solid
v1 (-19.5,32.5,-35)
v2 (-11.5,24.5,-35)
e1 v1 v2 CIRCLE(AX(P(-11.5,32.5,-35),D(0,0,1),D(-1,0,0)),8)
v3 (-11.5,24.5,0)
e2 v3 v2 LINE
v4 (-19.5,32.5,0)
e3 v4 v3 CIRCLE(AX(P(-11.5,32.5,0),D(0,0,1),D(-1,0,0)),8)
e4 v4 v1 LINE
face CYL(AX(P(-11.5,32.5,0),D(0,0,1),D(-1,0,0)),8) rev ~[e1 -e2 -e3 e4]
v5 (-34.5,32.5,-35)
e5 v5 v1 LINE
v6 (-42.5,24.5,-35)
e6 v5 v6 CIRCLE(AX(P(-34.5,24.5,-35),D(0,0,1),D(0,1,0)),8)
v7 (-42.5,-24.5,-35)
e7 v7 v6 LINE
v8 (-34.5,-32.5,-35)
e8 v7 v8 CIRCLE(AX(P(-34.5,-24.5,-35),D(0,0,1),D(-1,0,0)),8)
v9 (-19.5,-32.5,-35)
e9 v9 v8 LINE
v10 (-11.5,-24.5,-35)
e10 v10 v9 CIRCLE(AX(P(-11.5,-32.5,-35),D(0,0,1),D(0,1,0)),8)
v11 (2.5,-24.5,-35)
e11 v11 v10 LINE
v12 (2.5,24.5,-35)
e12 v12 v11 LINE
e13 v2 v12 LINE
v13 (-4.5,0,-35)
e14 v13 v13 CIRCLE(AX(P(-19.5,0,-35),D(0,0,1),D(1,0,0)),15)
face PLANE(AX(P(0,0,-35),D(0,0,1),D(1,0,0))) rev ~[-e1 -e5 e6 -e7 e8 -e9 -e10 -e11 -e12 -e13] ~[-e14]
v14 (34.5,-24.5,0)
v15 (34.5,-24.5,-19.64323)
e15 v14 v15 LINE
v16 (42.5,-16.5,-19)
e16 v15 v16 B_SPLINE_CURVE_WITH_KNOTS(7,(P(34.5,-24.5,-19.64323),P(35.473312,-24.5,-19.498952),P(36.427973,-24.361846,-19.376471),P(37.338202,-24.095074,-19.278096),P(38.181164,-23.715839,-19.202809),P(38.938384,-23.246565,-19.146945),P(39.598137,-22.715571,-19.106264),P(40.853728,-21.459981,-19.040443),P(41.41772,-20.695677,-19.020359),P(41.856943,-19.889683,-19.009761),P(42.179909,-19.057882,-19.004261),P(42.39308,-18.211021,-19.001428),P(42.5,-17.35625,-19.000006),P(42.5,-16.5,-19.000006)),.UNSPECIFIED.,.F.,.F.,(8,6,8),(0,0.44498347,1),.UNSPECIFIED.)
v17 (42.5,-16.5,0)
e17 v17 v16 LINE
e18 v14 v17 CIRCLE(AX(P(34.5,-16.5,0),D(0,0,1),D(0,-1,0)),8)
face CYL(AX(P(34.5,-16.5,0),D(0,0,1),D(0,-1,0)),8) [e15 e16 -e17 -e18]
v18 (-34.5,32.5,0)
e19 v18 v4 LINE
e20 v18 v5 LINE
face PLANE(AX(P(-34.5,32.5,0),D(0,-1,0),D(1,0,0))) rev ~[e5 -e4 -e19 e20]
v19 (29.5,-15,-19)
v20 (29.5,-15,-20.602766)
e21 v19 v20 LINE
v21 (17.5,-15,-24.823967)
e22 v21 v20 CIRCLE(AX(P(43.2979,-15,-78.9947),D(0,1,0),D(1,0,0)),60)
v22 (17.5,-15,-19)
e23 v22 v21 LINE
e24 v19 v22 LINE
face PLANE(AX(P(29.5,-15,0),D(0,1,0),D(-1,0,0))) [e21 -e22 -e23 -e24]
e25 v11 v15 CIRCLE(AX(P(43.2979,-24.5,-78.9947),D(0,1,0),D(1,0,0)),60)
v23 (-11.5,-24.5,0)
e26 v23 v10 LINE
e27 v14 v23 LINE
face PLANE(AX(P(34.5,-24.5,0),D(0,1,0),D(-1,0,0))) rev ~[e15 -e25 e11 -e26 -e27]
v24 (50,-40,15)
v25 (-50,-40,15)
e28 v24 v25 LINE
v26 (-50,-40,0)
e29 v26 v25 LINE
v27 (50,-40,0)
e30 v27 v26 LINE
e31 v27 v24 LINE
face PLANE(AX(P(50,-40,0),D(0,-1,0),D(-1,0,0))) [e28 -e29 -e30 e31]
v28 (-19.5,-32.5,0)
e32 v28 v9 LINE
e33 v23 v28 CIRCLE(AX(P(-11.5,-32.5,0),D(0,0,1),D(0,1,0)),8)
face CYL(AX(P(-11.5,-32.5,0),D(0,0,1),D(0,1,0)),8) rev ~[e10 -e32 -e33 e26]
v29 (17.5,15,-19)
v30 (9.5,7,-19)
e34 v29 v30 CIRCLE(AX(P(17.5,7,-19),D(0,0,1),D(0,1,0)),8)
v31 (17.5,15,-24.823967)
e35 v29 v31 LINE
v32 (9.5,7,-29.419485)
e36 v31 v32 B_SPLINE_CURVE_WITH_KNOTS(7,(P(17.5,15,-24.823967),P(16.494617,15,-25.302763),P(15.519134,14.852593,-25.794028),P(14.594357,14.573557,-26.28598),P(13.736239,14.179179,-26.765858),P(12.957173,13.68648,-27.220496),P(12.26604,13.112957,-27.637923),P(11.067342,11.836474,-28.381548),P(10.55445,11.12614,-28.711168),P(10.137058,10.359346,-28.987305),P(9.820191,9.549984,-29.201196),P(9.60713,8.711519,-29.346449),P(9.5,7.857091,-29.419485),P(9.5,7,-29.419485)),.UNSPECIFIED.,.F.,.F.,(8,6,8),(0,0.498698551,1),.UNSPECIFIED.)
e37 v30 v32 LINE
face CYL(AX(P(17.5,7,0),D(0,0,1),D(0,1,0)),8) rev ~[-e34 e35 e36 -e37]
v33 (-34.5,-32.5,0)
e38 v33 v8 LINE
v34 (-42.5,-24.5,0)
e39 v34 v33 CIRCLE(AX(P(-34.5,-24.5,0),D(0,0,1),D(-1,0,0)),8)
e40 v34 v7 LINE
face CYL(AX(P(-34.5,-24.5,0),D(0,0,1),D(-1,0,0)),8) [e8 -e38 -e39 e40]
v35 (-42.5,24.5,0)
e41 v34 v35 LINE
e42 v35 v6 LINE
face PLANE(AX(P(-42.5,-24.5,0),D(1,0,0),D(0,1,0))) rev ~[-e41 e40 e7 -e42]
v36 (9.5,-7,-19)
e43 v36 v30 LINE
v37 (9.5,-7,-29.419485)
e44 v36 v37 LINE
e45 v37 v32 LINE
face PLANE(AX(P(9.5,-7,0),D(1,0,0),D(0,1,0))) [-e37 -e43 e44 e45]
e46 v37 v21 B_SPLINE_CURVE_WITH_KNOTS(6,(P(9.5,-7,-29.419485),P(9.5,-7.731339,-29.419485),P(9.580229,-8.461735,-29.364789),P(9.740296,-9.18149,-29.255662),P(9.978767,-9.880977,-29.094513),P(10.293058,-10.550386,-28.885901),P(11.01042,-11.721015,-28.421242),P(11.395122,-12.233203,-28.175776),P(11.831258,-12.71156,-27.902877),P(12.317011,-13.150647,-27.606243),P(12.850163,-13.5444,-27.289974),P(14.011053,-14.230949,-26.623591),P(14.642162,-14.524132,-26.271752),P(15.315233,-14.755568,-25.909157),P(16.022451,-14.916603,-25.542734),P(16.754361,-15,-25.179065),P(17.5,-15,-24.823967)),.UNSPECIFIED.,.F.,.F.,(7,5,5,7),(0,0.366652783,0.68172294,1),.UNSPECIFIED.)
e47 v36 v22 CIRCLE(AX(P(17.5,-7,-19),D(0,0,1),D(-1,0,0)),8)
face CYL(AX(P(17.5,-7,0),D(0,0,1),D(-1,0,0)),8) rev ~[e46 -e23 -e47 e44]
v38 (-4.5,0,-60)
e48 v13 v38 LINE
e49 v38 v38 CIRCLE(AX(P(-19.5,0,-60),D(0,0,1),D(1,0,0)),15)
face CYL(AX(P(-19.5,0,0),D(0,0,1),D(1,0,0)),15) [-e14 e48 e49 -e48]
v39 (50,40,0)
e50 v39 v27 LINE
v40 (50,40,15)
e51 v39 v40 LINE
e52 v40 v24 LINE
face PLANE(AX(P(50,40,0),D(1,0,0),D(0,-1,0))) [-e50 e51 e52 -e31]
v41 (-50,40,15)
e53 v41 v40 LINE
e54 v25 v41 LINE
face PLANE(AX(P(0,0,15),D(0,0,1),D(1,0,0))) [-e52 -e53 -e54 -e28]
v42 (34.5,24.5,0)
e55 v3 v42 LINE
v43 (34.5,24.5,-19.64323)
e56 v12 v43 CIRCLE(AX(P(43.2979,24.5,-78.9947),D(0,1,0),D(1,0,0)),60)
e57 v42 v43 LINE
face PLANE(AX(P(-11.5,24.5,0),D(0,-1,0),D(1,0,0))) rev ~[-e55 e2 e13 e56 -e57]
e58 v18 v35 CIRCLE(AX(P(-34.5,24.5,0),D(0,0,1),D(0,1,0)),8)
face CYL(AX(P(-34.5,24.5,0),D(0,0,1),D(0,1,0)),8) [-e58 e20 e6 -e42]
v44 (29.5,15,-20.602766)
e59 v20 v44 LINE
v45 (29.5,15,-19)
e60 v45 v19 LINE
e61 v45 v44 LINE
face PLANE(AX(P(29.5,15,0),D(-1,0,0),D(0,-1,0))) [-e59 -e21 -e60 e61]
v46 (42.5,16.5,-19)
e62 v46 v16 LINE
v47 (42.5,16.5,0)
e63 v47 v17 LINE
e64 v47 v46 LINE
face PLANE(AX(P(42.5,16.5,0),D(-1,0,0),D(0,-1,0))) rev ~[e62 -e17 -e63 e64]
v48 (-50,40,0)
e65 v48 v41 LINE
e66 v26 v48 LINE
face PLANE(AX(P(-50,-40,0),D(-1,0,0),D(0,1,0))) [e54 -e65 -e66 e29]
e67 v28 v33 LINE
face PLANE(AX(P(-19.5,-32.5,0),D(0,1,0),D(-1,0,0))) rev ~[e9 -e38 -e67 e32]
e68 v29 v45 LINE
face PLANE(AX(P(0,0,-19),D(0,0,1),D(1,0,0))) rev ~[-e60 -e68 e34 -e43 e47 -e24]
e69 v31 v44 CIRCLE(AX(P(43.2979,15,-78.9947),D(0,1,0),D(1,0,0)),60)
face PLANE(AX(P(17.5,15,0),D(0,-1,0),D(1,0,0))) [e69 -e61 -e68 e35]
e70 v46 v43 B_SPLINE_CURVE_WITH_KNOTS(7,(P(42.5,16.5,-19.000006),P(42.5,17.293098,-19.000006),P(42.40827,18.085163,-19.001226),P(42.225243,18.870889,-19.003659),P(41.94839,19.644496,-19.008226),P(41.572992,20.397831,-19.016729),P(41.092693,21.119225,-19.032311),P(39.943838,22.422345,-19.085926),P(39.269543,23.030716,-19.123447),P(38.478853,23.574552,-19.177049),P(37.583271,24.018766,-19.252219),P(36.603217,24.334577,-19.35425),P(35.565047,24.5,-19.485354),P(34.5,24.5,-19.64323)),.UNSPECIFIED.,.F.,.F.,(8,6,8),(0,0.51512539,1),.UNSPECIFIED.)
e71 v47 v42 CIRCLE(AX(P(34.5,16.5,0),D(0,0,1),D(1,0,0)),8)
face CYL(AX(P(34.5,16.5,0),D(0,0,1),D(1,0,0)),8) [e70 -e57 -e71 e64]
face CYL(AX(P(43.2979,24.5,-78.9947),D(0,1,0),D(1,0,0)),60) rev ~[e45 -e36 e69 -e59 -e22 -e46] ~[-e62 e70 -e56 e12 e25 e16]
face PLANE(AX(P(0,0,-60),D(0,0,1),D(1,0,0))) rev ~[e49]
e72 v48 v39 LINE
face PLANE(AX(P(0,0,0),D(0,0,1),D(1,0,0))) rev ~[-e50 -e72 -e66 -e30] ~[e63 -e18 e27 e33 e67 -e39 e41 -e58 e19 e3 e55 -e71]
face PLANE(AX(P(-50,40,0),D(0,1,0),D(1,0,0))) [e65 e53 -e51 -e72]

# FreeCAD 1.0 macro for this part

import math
import FreeCAD as App
import Part
import Sketcher

V = App.Vector
Q = App.Units.Quantity


def add_polygon(sketch, points):
    """Adds a closed chain of lines whose ends are joined by coincident constraints."""
    first, n = sketch.GeometryCount, len(points)
    for a, b in zip(points, points[1:] + points[:1]):
        sketch.addGeometry(Part.LineSegment(App.Vector(*a, 0), App.Vector(*b, 0)), False)
    for i in range(n):
        sketch.addConstraint(Sketcher.Constraint("Coincident", first + i, 2, first + (i + 1) % n, 1))

doc = App.newDocument("Part")
params = doc.addObject("Spreadsheet::Sheet", "Params")
for row, (alias, value) in enumerate([
    ("sketch1_width", "100 mm"),
    ("sketch1_height", "80 mm"),
    ("pad1_length", "15 mm"),
    ("sketch2_diameter", "30 mm"),
    ("pad2_length", "60 mm"),
    ("sketch3_diameter", "30 mm"),
    ("sketch3_radius", "8 mm"),
    ("sketch3_width", "46 mm"),
    ("sketch3_height", "49 mm"),
    ("sketch3_height2", "30 mm"),
    ("pad3_length", "35 mm"),
    ("sketch4_radius", "8 mm"),
    ("sketch4_height", "30 mm"),
    ("pad4_length", "19 mm"),
    ("sketch5_radius", "60 mm"),
    ("sketch5_width", "40 mm"),
    ("sketch5_height", "16 mm"),
    ("pocket1_length", "60 mm"),
], start=1):
    params.set(f"A{row}", alias)
    params.set(f"B{row}", "=" + value)
    params.setAlias(f"B{row}", alias)

body = doc.addObject("PartDesign::Body", "Body")

sketch1 = body.newObject("Sketcher::SketchObject", "Sketch")
sketch1.AttachmentSupport = (doc.getObject("XY_Plane"), [""])
sketch1.MapMode = "FlatFace"
add_polygon(sketch1, [(50, 40), (-50, 40), (-50, -40), (50, -40)])
sketch1.addConstraint([
    Sketcher.Constraint("Horizontal", 0),
    Sketcher.Constraint("Vertical", 1),
    Sketcher.Constraint("Horizontal", 2),
    Sketcher.Constraint("Vertical", 3),
    Sketcher.Constraint("Symmetric", 0, 2, 2, 2, -1, 1),
    Sketcher.Constraint("DistanceX", 0, 2, 0, 1, Q("100 mm")),
    Sketcher.Constraint("DistanceY", 1, 2, 1, 1, Q("80 mm")),
])
sketch1.setExpression("Constraints[9]", "Params.sketch1_width")
sketch1.setExpression("Constraints[10]", "Params.sketch1_height")
pad1 = body.newObject("PartDesign::Pad", "Pad")
pad1.Profile = sketch1
pad1.setExpression("Length", "Params.pad1_length")

sketch2 = body.newObject("Sketcher::SketchObject", "Sketch001")
sketch2.AttachmentSupport = (doc.getObject("XY_Plane"), [""])
sketch2.MapMode = "FlatFace"
sketch2.addGeometry(Part.Circle(V(-20, 0, 0), V(0, 0, 1), 15), False)
sketch2.addConstraint([
    Sketcher.Constraint("PointOnObject", 0, 3, -1),
    Sketcher.Constraint("Diameter", 0, Q("30 mm")),
    Sketcher.Constraint("DistanceX", 0, 3, -1, 1, Q("19.5 mm")),
])
sketch2.setExpression("Constraints[1]", "Params.sketch2_diameter")
pad2 = body.newObject("PartDesign::Pad", "Pad001")
pad2.Profile = sketch2
pad2.setExpression("Length", "Params.pad2_length")
pad2.Reversed = True

sketch3 = body.newObject("Sketcher::SketchObject", "Sketch002")
sketch3.AttachmentSupport = (doc.getObject("XY_Plane"), [""])
sketch3.MapMode = "FlatFace"
sketch3.addGeometry([
    Part.LineSegment(V(-20, 32, 0), V(-34, 32, 0)),
    Part.ArcOfCircle(Part.Circle(V(-34, 24, 0), V(0, 0, 1), 8), math.radians(90), math.radians(180)),
    Part.LineSegment(V(-42, 24, 0), V(-42, -24, 0)),
    Part.ArcOfCircle(Part.Circle(V(-34, -24, 0), V(0, 0, 1), 8), math.radians(180), math.radians(270)),
    Part.LineSegment(V(-34, -32, 0), V(-20, -32, 0)),
    Part.ArcOfCircle(Part.Circle(V(-12, -32, 0), V(0, 0, 1), 8), math.radians(90), math.radians(180)),
    Part.LineSegment(V(-12, -24, 0), V(34, -24, 0)),
    Part.ArcOfCircle(Part.Circle(V(34, -16, 0), V(0, 0, 1), 8), math.radians(-90), math.radians(0)),
    Part.LineSegment(V(42, -16, 0), V(42, 16, 0)),
    Part.ArcOfCircle(Part.Circle(V(34, 16, 0), V(0, 0, 1), 8), math.radians(0), math.radians(90)),
    Part.LineSegment(V(34, 24, 0), V(-12, 24, 0)),
    Part.ArcOfCircle(Part.Circle(V(-12, 32, 0), V(0, 0, 1), 8), math.radians(180), math.radians(270)),
    Part.Circle(V(-20, 0, 0), V(0, 0, 1), 15),
    Part.ArcOfCircle(Part.Circle(V(18, 7, 0), V(0, 0, 1), 8), math.radians(90), math.radians(180)),
    Part.LineSegment(V(18, 15, 0), V(30, 15, 0)),
    Part.LineSegment(V(30, 15, 0), V(30, -15, 0)),
    Part.LineSegment(V(30, -15, 0), V(18, -15, 0)),
    Part.ArcOfCircle(Part.Circle(V(18, -7, 0), V(0, 0, 1), 8), math.radians(180), math.radians(270)),
    Part.LineSegment(V(10, -7, 0), V(10, 7, 0)),
], False)
sketch3.addConstraint([
    Sketcher.Constraint("Tangent", 0, 2, 1, 1),
    Sketcher.Constraint("Tangent", 1, 2, 2, 1),
    Sketcher.Constraint("Tangent", 2, 2, 3, 1),
    Sketcher.Constraint("Tangent", 3, 2, 4, 1),
    Sketcher.Constraint("Coincident", 4, 2, 5, 2),
    Sketcher.Constraint("Tangent", 5, 1, 6, 1),
    Sketcher.Constraint("Tangent", 6, 2, 7, 1),
    Sketcher.Constraint("Tangent", 7, 2, 8, 1),
    Sketcher.Constraint("Tangent", 8, 2, 9, 1),
    Sketcher.Constraint("Tangent", 9, 2, 10, 1),
    Sketcher.Constraint("Tangent", 10, 2, 11, 2),
    Sketcher.Constraint("Coincident", 11, 1, 0, 1),
    Sketcher.Constraint("Tangent", 13, 1, 14, 1),
    Sketcher.Constraint("Coincident", 14, 2, 15, 1),
    Sketcher.Constraint("Coincident", 15, 2, 16, 1),
    Sketcher.Constraint("Tangent", 16, 2, 17, 2),
    Sketcher.Constraint("Tangent", 17, 1, 18, 1),
    Sketcher.Constraint("Tangent", 18, 2, 13, 2),
    Sketcher.Constraint("Horizontal", 0),
    Sketcher.Constraint("Vertical", 2),
    Sketcher.Constraint("Horizontal", 4),
    Sketcher.Constraint("Horizontal", 6),
    Sketcher.Constraint("Vertical", 8),
    Sketcher.Constraint("Horizontal", 10),
    Sketcher.Constraint("Horizontal", 14),
    Sketcher.Constraint("Vertical", 15),
    Sketcher.Constraint("Horizontal", 16),
    Sketcher.Constraint("Vertical", 18),
    Sketcher.Constraint("Equal", 1, 3),
    Sketcher.Constraint("Equal", 3, 5),
    Sketcher.Constraint("Equal", 5, 7),
    Sketcher.Constraint("Equal", 7, 9),
    Sketcher.Constraint("Equal", 9, 11),
    Sketcher.Constraint("Equal", 11, 13),
    Sketcher.Constraint("Equal", 13, 17),
    Sketcher.Constraint("Symmetric", 5, 3, 11, 3, -1),
    Sketcher.Constraint("PointOnObject", 12, 3, -1),
    Sketcher.Constraint("Horizontal", 11, 3, 0, 2),
    Sketcher.Constraint("Horizontal", 5, 3, 3, 2),
    Sketcher.Constraint("Vertical", 12, 3, 4, 2),
    Sketcher.Constraint("Diameter", 12, Q("30 mm")),
    Sketcher.Constraint("Radius", 1, Q("8 mm")),
    Sketcher.Constraint("DistanceX", 6, 1, 6, 2, Q("46 mm")),
    Sketcher.Constraint("DistanceY", 2, 2, 2, 1, Q("49 mm")),
    Sketcher.Constraint("DistanceY", 15, 2, 15, 1, Q("30 mm")),
    Sketcher.Constraint("DistanceX", 3, 3, 5, 3, Q("23 mm")),
    Sketcher.Constraint("DistanceX", 14, 2, 8, 2, Q("13 mm")),
    Sketcher.Constraint("DistanceX", 17, 1, 15, 2, Q("20 mm")),
    Sketcher.Constraint("DistanceY", -1, 1, 13, 3, Q("7 mm")),
    Sketcher.Constraint("DistanceX", 1, 3, -1, 1, Q("34.5 mm")),
])
sketch3.setExpression("Constraints[40]", "Params.sketch3_diameter")
sketch3.setExpression("Constraints[41]", "Params.sketch3_radius")
sketch3.setExpression("Constraints[42]", "Params.sketch3_width")
sketch3.setExpression("Constraints[43]", "Params.sketch3_height")
sketch3.setExpression("Constraints[44]", "Params.sketch3_height2")
pad3 = body.newObject("PartDesign::Pad", "Pad002")
pad3.Profile = sketch3
pad3.setExpression("Length", "Params.pad3_length")
pad3.Reversed = True

sketch4 = body.newObject("Sketcher::SketchObject", "Sketch003")
sketch4.AttachmentSupport = (doc.getObject("XY_Plane"), [""])
sketch4.MapMode = "FlatFace"
sketch4.addGeometry([
    Part.LineSegment(V(30, 15, 0), V(18, 15, 0)),
    Part.ArcOfCircle(Part.Circle(V(18, 7, 0), V(0, 0, 1), 8), math.radians(90), math.radians(180)),
    Part.LineSegment(V(10, 7, 0), V(10, -7, 0)),
    Part.ArcOfCircle(Part.Circle(V(18, -7, 0), V(0, 0, 1), 8), math.radians(180), math.radians(270)),
    Part.LineSegment(V(18, -15, 0), V(30, -15, 0)),
    Part.LineSegment(V(30, -15, 0), V(30, 15, 0)),
], False)
sketch4.addConstraint([
    Sketcher.Constraint("Tangent", 0, 2, 1, 1),
    Sketcher.Constraint("Tangent", 1, 2, 2, 1),
    Sketcher.Constraint("Tangent", 2, 2, 3, 1),
    Sketcher.Constraint("Tangent", 3, 2, 4, 1),
    Sketcher.Constraint("Coincident", 4, 2, 5, 1),
    Sketcher.Constraint("Coincident", 5, 2, 0, 1),
    Sketcher.Constraint("Horizontal", 0),
    Sketcher.Constraint("Vertical", 2),
    Sketcher.Constraint("Horizontal", 4),
    Sketcher.Constraint("Vertical", 5),
    Sketcher.Constraint("Equal", 1, 3),
    Sketcher.Constraint("Radius", 1, Q("8 mm")),
    Sketcher.Constraint("DistanceY", 5, 1, 5, 2, Q("30 mm")),
    Sketcher.Constraint("DistanceX", 2, 2, 4, 2, Q("20 mm")),
    Sketcher.Constraint("DistanceY", -1, 1, 1, 3, Q("7 mm")),
    Sketcher.Constraint("DistanceX", -1, 1, 1, 3, Q("17.5 mm")),
])
sketch4.setExpression("Constraints[11]", "Params.sketch4_radius")
sketch4.setExpression("Constraints[12]", "Params.sketch4_height")
pad4 = body.newObject("PartDesign::Pad", "Pad003")
pad4.Profile = sketch4
pad4.setExpression("Length", "Params.pad4_length")
pad4.Reversed = True

sketch5 = body.newObject("Sketcher::SketchObject", "Sketch004")
sketch5.AttachmentSupport = (doc.getObject("XZ_Plane"), [""])
sketch5.MapMode = "FlatFace"
sketch5.AttachmentOffset = App.Placement(V(0, 0, -24.5), App.Rotation())
sketch5.addGeometry([
    Part.LineSegment(V(42, -35, 0), V(2, -35, 0)),
    Part.ArcOfCircle(Part.Circle(V(43, -79, 0), V(0, 0, 1), 60), math.radians(91), math.radians(133)),
    Part.LineSegment(V(42, -19, 0), V(42, -35, 0)),
], False)
sketch5.addConstraint([
    Sketcher.Constraint("Coincident", 0, 2, 1, 2),
    Sketcher.Constraint("Coincident", 1, 1, 2, 1),
    Sketcher.Constraint("Coincident", 2, 2, 0, 1),
    Sketcher.Constraint("Horizontal", 0),
    Sketcher.Constraint("Vertical", 2),
    Sketcher.Constraint("Radius", 1, Q("60 mm")),
    Sketcher.Constraint("DistanceX", 0, 2, 0, 1, Q("40 mm")),
    Sketcher.Constraint("DistanceY", 1, 1, -1, 1, Q("19 mm")),
    Sketcher.Constraint("DistanceY", 2, 2, 2, 1, Q("16 mm")),
    Sketcher.Constraint("DistanceX", -1, 1, 0, 2, Q("2.5 mm")),
])
sketch5.setExpression("Constraints[5]", "Params.sketch5_radius")
sketch5.setExpression("Constraints[6]", "Params.sketch5_width")
sketch5.setExpression("Constraints[8]", "Params.sketch5_height")
pocket1 = body.newObject("PartDesign::Pocket", "Pocket")
pocket1.Profile = sketch5
pocket1.setExpression("Length", "Params.pocket1_length")
pocket1.Reversed = True

doc.recompute()
